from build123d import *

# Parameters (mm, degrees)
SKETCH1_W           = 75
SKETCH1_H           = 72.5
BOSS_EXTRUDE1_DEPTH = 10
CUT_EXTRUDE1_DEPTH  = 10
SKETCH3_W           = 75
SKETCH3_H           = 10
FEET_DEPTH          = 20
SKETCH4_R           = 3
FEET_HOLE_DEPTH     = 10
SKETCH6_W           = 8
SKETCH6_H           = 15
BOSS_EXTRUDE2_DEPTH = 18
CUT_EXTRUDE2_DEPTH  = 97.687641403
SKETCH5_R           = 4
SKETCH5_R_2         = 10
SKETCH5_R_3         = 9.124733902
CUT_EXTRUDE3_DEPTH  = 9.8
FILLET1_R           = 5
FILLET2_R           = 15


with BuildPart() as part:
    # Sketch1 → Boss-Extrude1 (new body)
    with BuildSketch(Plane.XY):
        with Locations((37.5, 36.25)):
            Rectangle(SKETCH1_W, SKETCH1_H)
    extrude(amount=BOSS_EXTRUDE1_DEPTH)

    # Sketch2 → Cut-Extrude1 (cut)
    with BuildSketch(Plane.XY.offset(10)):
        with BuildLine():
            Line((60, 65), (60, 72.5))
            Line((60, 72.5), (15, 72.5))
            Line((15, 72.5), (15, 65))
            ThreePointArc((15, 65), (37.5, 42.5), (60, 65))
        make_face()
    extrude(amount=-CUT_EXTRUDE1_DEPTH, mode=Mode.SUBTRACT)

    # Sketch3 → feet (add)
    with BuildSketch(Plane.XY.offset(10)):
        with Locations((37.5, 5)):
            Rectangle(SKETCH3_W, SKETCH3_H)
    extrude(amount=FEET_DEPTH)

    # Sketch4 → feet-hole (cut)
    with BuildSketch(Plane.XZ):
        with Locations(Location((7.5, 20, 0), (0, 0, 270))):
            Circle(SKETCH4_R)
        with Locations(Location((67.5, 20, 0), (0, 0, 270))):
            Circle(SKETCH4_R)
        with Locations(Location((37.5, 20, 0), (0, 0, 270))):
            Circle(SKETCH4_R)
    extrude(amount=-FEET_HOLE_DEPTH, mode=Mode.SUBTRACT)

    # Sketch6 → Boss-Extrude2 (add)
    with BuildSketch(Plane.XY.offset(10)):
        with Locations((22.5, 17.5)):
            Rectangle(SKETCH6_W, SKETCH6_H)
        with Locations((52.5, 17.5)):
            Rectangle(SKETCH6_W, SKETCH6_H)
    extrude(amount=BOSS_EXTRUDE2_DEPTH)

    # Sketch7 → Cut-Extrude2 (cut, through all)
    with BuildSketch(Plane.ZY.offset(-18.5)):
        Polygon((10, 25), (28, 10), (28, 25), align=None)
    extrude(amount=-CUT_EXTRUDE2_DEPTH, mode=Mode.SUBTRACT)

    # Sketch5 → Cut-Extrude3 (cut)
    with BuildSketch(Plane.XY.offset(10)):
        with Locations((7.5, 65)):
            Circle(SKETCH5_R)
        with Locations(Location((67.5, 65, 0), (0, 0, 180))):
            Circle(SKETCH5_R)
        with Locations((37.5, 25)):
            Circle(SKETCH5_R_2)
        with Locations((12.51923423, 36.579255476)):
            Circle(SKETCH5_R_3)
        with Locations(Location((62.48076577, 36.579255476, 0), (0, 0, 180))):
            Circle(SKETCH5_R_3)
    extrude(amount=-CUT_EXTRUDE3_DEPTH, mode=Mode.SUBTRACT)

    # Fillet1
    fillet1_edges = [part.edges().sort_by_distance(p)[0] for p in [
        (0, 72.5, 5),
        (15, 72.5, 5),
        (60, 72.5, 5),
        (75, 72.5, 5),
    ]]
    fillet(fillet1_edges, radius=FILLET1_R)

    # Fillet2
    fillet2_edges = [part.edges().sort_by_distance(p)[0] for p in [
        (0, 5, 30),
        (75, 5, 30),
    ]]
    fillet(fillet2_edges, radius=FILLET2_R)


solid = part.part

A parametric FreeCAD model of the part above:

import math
import FreeCAD as App
import Part
import Sketcher
from FreeCAD import Vector
Q = App.Units.Quantity


def edges_at(feature, points):
    """Names of the edges that pass closest to the given points."""
    edges = feature.Shape.Edges
    near = lambda p: min(range(len(edges)), key=lambda i: edges[i].distToShape(Part.Vertex(*p))[0])
    return sorted({f"Edge{near(p) + 1}" for p in points})

doc = App.newDocument("Part")
body = doc.addObject("PartDesign::Body", "Body")

sketch1 = doc.addObject("Sketcher::SketchObject", "Sketch")
body.addObject(sketch1)
sketch1.AttachmentSupport = (doc.XY_Plane, [""])
sketch1.MapMode = "FlatFace"
sketch1.addGeometry([
    Part.LineSegment(Vector(0, 72, 0), Vector(0, 0, 0)),
    Part.LineSegment(Vector(0, 0, 0), Vector(75, 0, 0)),
    Part.LineSegment(Vector(75, 0, 0), Vector(75, 72, 0)),
    Part.LineSegment(Vector(75, 72, 0), Vector(0, 72, 0)),
], False)
sketch1.addConstraint([
    Sketcher.Constraint("Coincident", 0, 2, 1, 1),
    Sketcher.Constraint("Coincident", 1, 2, 2, 1),
    Sketcher.Constraint("Coincident", 2, 2, 3, 1),
    Sketcher.Constraint("Coincident", 3, 2, 0, 1),
    Sketcher.Constraint("Vertical", 0),
    Sketcher.Constraint("Horizontal", 1),
    Sketcher.Constraint("Vertical", 2),
    Sketcher.Constraint("Horizontal", 3),
    Sketcher.Constraint("Coincident", 0, 2, -1, 1),
    Sketcher.Constraint("DistanceX", 1, 1, 1, 2, Q("75 mm")),
    Sketcher.Constraint("DistanceY", 0, 2, 0, 1, Q("72.5 mm")),
])
pad1 = doc.addObject("PartDesign::Pad", "Pad")
body.addObject(pad1)
pad1.Profile = sketch1
pad1.Length = 10

sketch2 = doc.addObject("Sketcher::SketchObject", "Sketch001")
body.addObject(sketch2)
sketch2.AttachmentSupport = (doc.XY_Plane, [""])
sketch2.MapMode = "FlatFace"
sketch2.AttachmentOffset = App.Placement(Vector(0, 0, 10), App.Rotation())
sketch2.addGeometry([
    Part.LineSegment(Vector(60, 65, 0), Vector(60, 72, 0)),
    Part.LineSegment(Vector(60, 72, 0), Vector(15, 72, 0)),
    Part.LineSegment(Vector(15, 72, 0), Vector(15, 65, 0)),
    Part.ArcOfCircle(Part.Circle(Vector(38, 65, 0), Vector(0, 0, 1), 22), math.radians(180), math.radians(360)),
], False)
sketch2.addConstraint([
    Sketcher.Constraint("Coincident", 0, 2, 1, 1),
    Sketcher.Constraint("Coincident", 1, 2, 2, 1),
    Sketcher.Constraint("Tangent", 2, 2, 3, 1),
    Sketcher.Constraint("Tangent", 3, 2, 0, 1),
    Sketcher.Constraint("Vertical", 0),
    Sketcher.Constraint("Horizontal", 1),
    Sketcher.Constraint("Vertical", 2),
    Sketcher.Constraint("Radius", 3, Q("22.5 mm")),
    Sketcher.Constraint("DistanceY", 0, 1, 0, 2, Q("7.5 mm")),
    Sketcher.Constraint("DistanceY", -1, 1, 3, 3, Q("65 mm")),
    Sketcher.Constraint("DistanceX", -1, 1, 0, 2, Q("60 mm")),
])
pocket1 = doc.addObject("PartDesign::Pocket", "Pocket")
body.addObject(pocket1)
pocket1.Profile = sketch2
pocket1.Length = 10

sketch3 = doc.addObject("Sketcher::SketchObject", "Sketch002")
body.addObject(sketch3)
sketch3.AttachmentSupport = (doc.XY_Plane, [""])
sketch3.MapMode = "FlatFace"
sketch3.AttachmentOffset = App.Placement(Vector(0, 0, 10), App.Rotation())
sketch3.addGeometry([
    Part.LineSegment(Vector(0, 10, 0), Vector(0, 0, 0)),
    Part.LineSegment(Vector(0, 0, 0), Vector(75, 0, 0)),
    Part.LineSegment(Vector(75, 0, 0), Vector(75, 10, 0)),
    Part.LineSegment(Vector(75, 10, 0), Vector(0, 10, 0)),
], False)
sketch3.addConstraint([
    Sketcher.Constraint("Coincident", 0, 2, 1, 1),
    Sketcher.Constraint("Coincident", 1, 2, 2, 1),
    Sketcher.Constraint("Coincident", 2, 2, 3, 1),
    Sketcher.Constraint("Coincident", 3, 2, 0, 1),
    Sketcher.Constraint("Vertical", 0),
    Sketcher.Constraint("Horizontal", 1),
    Sketcher.Constraint("Vertical", 2),
    Sketcher.Constraint("Horizontal", 3),
    Sketcher.Constraint("Coincident", 0, 2, -1, 1),
    Sketcher.Constraint("DistanceX", 1, 1, 1, 2, Q("75 mm")),
    Sketcher.Constraint("DistanceY", 0, 2, 0, 1, Q("10 mm")),
])
pad2 = doc.addObject("PartDesign::Pad", "Pad001")
body.addObject(pad2)
pad2.Profile = sketch3
pad2.Length = 20

sketch4 = doc.addObject("Sketcher::SketchObject", "Sketch003")
body.addObject(sketch4)
sketch4.AttachmentSupport = (doc.XZ_Plane, [""])
sketch4.MapMode = "FlatFace"
sketch4.addGeometry([
    Part.Circle(Vector(7.5, 20, 0), Vector(0, 0, 1), 3),
    Part.Circle(Vector(67.5, 20, 0), Vector(0, 0, 1), 3),
    Part.Circle(Vector(37.5, 20, 0), Vector(0, 0, 1), 3),
], False)
sketch4.addConstraint([
    Sketcher.Constraint("Equal", 0, 1),
    Sketcher.Constraint("Equal", 1, 2),
    Sketcher.Constraint("Horizontal", 0, 3, 1, 3),
    Sketcher.Constraint("Horizontal", 1, 3, 2, 3),
    Sketcher.Constraint("Diameter", 0, Q("6 mm")),
    Sketcher.Constraint("DistanceY", -1, 1, 0, 3, Q("20 mm")),
    Sketcher.Constraint("DistanceX", 0, 3, 1, 3, Q("60 mm")),
    Sketcher.Constraint("DistanceX", 0, 3, 2, 3, Q("30 mm")),
    Sketcher.Constraint("DistanceX", -1, 1, 0, 3, Q("7.5 mm")),
])
pocket2 = doc.addObject("PartDesign::Pocket", "Pocket001")
body.addObject(pocket2)
pocket2.Profile = sketch4
pocket2.Length = 10

sketch5 = doc.addObject("Sketcher::SketchObject", "Sketch004")
body.addObject(sketch5)
sketch5.AttachmentSupport = (doc.XY_Plane, [""])
sketch5.MapMode = "FlatFace"
sketch5.AttachmentOffset = App.Placement(Vector(0, 0, 10), App.Rotation())
sketch5.addGeometry([
    Part.LineSegment(Vector(18, 25, 0), Vector(18, 10, 0)),
    Part.LineSegment(Vector(18, 10, 0), Vector(26, 10, 0)),
    Part.LineSegment(Vector(26, 10, 0), Vector(26, 25, 0)),
    Part.LineSegment(Vector(26, 25, 0), Vector(18, 25, 0)),
    Part.LineSegment(Vector(48, 25, 0), Vector(48, 10, 0)),
    Part.LineSegment(Vector(48, 10, 0), Vector(56, 10, 0)),
    Part.LineSegment(Vector(56, 10, 0), Vector(56, 25, 0)),
    Part.LineSegment(Vector(56, 25, 0), Vector(48, 25, 0)),
], False)
sketch5.addConstraint([
    Sketcher.Constraint("Coincident", 0, 2, 1, 1),
    Sketcher.Constraint("Coincident", 1, 2, 2, 1),
    Sketcher.Constraint("Coincident", 2, 2, 3, 1),
    Sketcher.Constraint("Coincident", 3, 2, 0, 1),
    Sketcher.Constraint("Coincident", 4, 2, 5, 1),
    Sketcher.Constraint("Coincident", 5, 2, 6, 1),
    Sketcher.Constraint("Coincident", 6, 2, 7, 1),
    Sketcher.Constraint("Coincident", 7, 2, 4, 1),
    Sketcher.Constraint("Vertical", 0),
    Sketcher.Constraint("Horizontal", 1),
    Sketcher.Constraint("Vertical", 2),
    Sketcher.Constraint("Horizontal", 3),
    Sketcher.Constraint("Vertical", 4),
    Sketcher.Constraint("Horizontal", 5),
    Sketcher.Constraint("Vertical", 6),
    Sketcher.Constraint("Horizontal", 7),
    Sketcher.Constraint("Horizontal", 1, 2, 4, 2),
    Sketcher.Constraint("Horizontal", 3, 2, 6, 2),
    Sketcher.Constraint("Equal", 3, 5),
    Sketcher.Constraint("DistanceX", 1, 1, 1, 2, Q("8 mm")),
    Sketcher.Constraint("DistanceY", 0, 2, 0, 1, Q("15 mm")),
    Sketcher.Constraint("DistanceY", -1, 1, 0, 2, Q("10 mm")),
    Sketcher.Constraint("DistanceX", 1, 2, 4, 2, Q("22 mm")),
    Sketcher.Constraint("DistanceX", -1, 1, 0, 2, Q("18.5 mm")),
])
pad3 = doc.addObject("PartDesign::Pad", "Pad002")
body.addObject(pad3)
pad3.Profile = sketch5
pad3.Length = 18

sketch6 = doc.addObject("Sketcher::SketchObject", "Sketch005")
body.addObject(sketch6)
sketch6.AttachmentSupport = (doc.YZ_Plane, [""])
sketch6.MapMode = "FlatFace"
sketch6.AttachmentOffset = App.Placement(Vector(0, 0, 18.5), App.Rotation())
sketch6.addGeometry([
    Part.LineSegment(Vector(25, 10, 0), Vector(10, 28, 0)),
    Part.LineSegment(Vector(10, 28, 0), Vector(25, 28, 0)),
    Part.LineSegment(Vector(25, 28, 0), Vector(25, 10, 0)),
], False)
sketch6.addConstraint([
    Sketcher.Constraint("Coincident", 0, 2, 1, 1),
    Sketcher.Constraint("Coincident", 1, 2, 2, 1),
    Sketcher.Constraint("Coincident", 2, 2, 0, 1),
    Sketcher.Constraint("Horizontal", 1),
    Sketcher.Constraint("Vertical", 2),
    Sketcher.Constraint("DistanceX", 1, 1, 1, 2, Q("15 mm")),
    Sketcher.Constraint("DistanceY", 2, 2, 2, 1, Q("18 mm")),
    Sketcher.Constraint("DistanceX", -1, 1, 0, 2, Q("10 mm")),
    Sketcher.Constraint("DistanceY", -1, 1, 0, 2, Q("28 mm")),
])
pocket3 = doc.addObject("PartDesign::Pocket", "Pocket002")
body.addObject(pocket3)
pocket3.Profile = sketch6
pocket3.Type = "ThroughAll"
pocket3.Reversed = True

sketch7 = doc.addObject("Sketcher::SketchObject", "Sketch006")
body.addObject(sketch7)
sketch7.AttachmentSupport = (doc.XY_Plane, [""])
sketch7.MapMode = "FlatFace"
sketch7.AttachmentOffset = App.Placement(Vector(0, 0, 10), App.Rotation())
sketch7.addGeometry([
    Part.Circle(Vector(7.5, 65, 0), Vector(0, 0, 1), 4),
    Part.Circle(Vector(67.5, 65, 0), Vector(0, 0, 1), 4),
    Part.Circle(Vector(37.5, 25, 0), Vector(0, 0, 1), 10),
    Part.Circle(Vector(12.5, 36.6, 0), Vector(0, 0, 1), 9.1),
    Part.Circle(Vector(62.5, 36.6, 0), Vector(0, 0, 1), 9.1),
], False)
sketch7.addConstraint([
    Sketcher.Constraint("Equal", 0, 1),
    Sketcher.Constraint("Equal", 3, 4),
    Sketcher.Constraint("Horizontal", 0, 3, 1, 3),
    Sketcher.Constraint("Horizontal", 3, 3, 4, 3),
    Sketcher.Constraint("Diameter", 0, Q("8 mm")),
    Sketcher.Constraint("Diameter", 2, Q("20 mm")),
    Sketcher.Constraint("DistanceY", -1, 1, 0, 3, Q("65 mm")),
    Sketcher.Constraint("DistanceY", -1, 1, 2, 3, Q("25 mm")),
    Sketcher.Constraint("DistanceX", 0, 3, 1, 3, Q("60 mm")),
    Sketcher.Constraint("DistanceX", 0, 3, 2, 3, Q("30 mm")),
    Sketcher.Constraint("DistanceX", -1, 1, 0, 3, Q("7.5 mm")),
    Sketcher.Constraint("Diameter", 3, Q("18.249468 mm")),
    Sketcher.Constraint("DistanceX", 3, 3, 4, 3, Q("49.961532 mm")),
    Sketcher.Constraint("DistanceX", -1, 1, 3, 3, Q("12.519234 mm")),
    Sketcher.Constraint("DistanceY", -1, 1, 3, 3, Q("36.579255 mm")),
])
pocket4 = doc.addObject("PartDesign::Pocket", "Pocket003")
body.addObject(pocket4)
pocket4.Profile = sketch7
pocket4.Length = 9.8
doc.recompute()

fillet = doc.addObject("PartDesign::Fillet", "Fillet")
body.addObject(fillet)
fillet.Base = (pocket4, edges_at(pocket4, [
    (0, 72.5, 5),
    (15, 72.5, 5),
    (60, 72.5, 5),
    (75, 72.5, 5),
]))
fillet.Radius = 5
doc.recompute()

fillet2 = doc.addObject("PartDesign::Fillet", "Fillet001")
body.addObject(fillet2)
fillet2.Base = (fillet, edges_at(fillet, [(0, 5, 30), (75, 5, 30)]))
fillet2.Radius = 15

doc.recompute()
